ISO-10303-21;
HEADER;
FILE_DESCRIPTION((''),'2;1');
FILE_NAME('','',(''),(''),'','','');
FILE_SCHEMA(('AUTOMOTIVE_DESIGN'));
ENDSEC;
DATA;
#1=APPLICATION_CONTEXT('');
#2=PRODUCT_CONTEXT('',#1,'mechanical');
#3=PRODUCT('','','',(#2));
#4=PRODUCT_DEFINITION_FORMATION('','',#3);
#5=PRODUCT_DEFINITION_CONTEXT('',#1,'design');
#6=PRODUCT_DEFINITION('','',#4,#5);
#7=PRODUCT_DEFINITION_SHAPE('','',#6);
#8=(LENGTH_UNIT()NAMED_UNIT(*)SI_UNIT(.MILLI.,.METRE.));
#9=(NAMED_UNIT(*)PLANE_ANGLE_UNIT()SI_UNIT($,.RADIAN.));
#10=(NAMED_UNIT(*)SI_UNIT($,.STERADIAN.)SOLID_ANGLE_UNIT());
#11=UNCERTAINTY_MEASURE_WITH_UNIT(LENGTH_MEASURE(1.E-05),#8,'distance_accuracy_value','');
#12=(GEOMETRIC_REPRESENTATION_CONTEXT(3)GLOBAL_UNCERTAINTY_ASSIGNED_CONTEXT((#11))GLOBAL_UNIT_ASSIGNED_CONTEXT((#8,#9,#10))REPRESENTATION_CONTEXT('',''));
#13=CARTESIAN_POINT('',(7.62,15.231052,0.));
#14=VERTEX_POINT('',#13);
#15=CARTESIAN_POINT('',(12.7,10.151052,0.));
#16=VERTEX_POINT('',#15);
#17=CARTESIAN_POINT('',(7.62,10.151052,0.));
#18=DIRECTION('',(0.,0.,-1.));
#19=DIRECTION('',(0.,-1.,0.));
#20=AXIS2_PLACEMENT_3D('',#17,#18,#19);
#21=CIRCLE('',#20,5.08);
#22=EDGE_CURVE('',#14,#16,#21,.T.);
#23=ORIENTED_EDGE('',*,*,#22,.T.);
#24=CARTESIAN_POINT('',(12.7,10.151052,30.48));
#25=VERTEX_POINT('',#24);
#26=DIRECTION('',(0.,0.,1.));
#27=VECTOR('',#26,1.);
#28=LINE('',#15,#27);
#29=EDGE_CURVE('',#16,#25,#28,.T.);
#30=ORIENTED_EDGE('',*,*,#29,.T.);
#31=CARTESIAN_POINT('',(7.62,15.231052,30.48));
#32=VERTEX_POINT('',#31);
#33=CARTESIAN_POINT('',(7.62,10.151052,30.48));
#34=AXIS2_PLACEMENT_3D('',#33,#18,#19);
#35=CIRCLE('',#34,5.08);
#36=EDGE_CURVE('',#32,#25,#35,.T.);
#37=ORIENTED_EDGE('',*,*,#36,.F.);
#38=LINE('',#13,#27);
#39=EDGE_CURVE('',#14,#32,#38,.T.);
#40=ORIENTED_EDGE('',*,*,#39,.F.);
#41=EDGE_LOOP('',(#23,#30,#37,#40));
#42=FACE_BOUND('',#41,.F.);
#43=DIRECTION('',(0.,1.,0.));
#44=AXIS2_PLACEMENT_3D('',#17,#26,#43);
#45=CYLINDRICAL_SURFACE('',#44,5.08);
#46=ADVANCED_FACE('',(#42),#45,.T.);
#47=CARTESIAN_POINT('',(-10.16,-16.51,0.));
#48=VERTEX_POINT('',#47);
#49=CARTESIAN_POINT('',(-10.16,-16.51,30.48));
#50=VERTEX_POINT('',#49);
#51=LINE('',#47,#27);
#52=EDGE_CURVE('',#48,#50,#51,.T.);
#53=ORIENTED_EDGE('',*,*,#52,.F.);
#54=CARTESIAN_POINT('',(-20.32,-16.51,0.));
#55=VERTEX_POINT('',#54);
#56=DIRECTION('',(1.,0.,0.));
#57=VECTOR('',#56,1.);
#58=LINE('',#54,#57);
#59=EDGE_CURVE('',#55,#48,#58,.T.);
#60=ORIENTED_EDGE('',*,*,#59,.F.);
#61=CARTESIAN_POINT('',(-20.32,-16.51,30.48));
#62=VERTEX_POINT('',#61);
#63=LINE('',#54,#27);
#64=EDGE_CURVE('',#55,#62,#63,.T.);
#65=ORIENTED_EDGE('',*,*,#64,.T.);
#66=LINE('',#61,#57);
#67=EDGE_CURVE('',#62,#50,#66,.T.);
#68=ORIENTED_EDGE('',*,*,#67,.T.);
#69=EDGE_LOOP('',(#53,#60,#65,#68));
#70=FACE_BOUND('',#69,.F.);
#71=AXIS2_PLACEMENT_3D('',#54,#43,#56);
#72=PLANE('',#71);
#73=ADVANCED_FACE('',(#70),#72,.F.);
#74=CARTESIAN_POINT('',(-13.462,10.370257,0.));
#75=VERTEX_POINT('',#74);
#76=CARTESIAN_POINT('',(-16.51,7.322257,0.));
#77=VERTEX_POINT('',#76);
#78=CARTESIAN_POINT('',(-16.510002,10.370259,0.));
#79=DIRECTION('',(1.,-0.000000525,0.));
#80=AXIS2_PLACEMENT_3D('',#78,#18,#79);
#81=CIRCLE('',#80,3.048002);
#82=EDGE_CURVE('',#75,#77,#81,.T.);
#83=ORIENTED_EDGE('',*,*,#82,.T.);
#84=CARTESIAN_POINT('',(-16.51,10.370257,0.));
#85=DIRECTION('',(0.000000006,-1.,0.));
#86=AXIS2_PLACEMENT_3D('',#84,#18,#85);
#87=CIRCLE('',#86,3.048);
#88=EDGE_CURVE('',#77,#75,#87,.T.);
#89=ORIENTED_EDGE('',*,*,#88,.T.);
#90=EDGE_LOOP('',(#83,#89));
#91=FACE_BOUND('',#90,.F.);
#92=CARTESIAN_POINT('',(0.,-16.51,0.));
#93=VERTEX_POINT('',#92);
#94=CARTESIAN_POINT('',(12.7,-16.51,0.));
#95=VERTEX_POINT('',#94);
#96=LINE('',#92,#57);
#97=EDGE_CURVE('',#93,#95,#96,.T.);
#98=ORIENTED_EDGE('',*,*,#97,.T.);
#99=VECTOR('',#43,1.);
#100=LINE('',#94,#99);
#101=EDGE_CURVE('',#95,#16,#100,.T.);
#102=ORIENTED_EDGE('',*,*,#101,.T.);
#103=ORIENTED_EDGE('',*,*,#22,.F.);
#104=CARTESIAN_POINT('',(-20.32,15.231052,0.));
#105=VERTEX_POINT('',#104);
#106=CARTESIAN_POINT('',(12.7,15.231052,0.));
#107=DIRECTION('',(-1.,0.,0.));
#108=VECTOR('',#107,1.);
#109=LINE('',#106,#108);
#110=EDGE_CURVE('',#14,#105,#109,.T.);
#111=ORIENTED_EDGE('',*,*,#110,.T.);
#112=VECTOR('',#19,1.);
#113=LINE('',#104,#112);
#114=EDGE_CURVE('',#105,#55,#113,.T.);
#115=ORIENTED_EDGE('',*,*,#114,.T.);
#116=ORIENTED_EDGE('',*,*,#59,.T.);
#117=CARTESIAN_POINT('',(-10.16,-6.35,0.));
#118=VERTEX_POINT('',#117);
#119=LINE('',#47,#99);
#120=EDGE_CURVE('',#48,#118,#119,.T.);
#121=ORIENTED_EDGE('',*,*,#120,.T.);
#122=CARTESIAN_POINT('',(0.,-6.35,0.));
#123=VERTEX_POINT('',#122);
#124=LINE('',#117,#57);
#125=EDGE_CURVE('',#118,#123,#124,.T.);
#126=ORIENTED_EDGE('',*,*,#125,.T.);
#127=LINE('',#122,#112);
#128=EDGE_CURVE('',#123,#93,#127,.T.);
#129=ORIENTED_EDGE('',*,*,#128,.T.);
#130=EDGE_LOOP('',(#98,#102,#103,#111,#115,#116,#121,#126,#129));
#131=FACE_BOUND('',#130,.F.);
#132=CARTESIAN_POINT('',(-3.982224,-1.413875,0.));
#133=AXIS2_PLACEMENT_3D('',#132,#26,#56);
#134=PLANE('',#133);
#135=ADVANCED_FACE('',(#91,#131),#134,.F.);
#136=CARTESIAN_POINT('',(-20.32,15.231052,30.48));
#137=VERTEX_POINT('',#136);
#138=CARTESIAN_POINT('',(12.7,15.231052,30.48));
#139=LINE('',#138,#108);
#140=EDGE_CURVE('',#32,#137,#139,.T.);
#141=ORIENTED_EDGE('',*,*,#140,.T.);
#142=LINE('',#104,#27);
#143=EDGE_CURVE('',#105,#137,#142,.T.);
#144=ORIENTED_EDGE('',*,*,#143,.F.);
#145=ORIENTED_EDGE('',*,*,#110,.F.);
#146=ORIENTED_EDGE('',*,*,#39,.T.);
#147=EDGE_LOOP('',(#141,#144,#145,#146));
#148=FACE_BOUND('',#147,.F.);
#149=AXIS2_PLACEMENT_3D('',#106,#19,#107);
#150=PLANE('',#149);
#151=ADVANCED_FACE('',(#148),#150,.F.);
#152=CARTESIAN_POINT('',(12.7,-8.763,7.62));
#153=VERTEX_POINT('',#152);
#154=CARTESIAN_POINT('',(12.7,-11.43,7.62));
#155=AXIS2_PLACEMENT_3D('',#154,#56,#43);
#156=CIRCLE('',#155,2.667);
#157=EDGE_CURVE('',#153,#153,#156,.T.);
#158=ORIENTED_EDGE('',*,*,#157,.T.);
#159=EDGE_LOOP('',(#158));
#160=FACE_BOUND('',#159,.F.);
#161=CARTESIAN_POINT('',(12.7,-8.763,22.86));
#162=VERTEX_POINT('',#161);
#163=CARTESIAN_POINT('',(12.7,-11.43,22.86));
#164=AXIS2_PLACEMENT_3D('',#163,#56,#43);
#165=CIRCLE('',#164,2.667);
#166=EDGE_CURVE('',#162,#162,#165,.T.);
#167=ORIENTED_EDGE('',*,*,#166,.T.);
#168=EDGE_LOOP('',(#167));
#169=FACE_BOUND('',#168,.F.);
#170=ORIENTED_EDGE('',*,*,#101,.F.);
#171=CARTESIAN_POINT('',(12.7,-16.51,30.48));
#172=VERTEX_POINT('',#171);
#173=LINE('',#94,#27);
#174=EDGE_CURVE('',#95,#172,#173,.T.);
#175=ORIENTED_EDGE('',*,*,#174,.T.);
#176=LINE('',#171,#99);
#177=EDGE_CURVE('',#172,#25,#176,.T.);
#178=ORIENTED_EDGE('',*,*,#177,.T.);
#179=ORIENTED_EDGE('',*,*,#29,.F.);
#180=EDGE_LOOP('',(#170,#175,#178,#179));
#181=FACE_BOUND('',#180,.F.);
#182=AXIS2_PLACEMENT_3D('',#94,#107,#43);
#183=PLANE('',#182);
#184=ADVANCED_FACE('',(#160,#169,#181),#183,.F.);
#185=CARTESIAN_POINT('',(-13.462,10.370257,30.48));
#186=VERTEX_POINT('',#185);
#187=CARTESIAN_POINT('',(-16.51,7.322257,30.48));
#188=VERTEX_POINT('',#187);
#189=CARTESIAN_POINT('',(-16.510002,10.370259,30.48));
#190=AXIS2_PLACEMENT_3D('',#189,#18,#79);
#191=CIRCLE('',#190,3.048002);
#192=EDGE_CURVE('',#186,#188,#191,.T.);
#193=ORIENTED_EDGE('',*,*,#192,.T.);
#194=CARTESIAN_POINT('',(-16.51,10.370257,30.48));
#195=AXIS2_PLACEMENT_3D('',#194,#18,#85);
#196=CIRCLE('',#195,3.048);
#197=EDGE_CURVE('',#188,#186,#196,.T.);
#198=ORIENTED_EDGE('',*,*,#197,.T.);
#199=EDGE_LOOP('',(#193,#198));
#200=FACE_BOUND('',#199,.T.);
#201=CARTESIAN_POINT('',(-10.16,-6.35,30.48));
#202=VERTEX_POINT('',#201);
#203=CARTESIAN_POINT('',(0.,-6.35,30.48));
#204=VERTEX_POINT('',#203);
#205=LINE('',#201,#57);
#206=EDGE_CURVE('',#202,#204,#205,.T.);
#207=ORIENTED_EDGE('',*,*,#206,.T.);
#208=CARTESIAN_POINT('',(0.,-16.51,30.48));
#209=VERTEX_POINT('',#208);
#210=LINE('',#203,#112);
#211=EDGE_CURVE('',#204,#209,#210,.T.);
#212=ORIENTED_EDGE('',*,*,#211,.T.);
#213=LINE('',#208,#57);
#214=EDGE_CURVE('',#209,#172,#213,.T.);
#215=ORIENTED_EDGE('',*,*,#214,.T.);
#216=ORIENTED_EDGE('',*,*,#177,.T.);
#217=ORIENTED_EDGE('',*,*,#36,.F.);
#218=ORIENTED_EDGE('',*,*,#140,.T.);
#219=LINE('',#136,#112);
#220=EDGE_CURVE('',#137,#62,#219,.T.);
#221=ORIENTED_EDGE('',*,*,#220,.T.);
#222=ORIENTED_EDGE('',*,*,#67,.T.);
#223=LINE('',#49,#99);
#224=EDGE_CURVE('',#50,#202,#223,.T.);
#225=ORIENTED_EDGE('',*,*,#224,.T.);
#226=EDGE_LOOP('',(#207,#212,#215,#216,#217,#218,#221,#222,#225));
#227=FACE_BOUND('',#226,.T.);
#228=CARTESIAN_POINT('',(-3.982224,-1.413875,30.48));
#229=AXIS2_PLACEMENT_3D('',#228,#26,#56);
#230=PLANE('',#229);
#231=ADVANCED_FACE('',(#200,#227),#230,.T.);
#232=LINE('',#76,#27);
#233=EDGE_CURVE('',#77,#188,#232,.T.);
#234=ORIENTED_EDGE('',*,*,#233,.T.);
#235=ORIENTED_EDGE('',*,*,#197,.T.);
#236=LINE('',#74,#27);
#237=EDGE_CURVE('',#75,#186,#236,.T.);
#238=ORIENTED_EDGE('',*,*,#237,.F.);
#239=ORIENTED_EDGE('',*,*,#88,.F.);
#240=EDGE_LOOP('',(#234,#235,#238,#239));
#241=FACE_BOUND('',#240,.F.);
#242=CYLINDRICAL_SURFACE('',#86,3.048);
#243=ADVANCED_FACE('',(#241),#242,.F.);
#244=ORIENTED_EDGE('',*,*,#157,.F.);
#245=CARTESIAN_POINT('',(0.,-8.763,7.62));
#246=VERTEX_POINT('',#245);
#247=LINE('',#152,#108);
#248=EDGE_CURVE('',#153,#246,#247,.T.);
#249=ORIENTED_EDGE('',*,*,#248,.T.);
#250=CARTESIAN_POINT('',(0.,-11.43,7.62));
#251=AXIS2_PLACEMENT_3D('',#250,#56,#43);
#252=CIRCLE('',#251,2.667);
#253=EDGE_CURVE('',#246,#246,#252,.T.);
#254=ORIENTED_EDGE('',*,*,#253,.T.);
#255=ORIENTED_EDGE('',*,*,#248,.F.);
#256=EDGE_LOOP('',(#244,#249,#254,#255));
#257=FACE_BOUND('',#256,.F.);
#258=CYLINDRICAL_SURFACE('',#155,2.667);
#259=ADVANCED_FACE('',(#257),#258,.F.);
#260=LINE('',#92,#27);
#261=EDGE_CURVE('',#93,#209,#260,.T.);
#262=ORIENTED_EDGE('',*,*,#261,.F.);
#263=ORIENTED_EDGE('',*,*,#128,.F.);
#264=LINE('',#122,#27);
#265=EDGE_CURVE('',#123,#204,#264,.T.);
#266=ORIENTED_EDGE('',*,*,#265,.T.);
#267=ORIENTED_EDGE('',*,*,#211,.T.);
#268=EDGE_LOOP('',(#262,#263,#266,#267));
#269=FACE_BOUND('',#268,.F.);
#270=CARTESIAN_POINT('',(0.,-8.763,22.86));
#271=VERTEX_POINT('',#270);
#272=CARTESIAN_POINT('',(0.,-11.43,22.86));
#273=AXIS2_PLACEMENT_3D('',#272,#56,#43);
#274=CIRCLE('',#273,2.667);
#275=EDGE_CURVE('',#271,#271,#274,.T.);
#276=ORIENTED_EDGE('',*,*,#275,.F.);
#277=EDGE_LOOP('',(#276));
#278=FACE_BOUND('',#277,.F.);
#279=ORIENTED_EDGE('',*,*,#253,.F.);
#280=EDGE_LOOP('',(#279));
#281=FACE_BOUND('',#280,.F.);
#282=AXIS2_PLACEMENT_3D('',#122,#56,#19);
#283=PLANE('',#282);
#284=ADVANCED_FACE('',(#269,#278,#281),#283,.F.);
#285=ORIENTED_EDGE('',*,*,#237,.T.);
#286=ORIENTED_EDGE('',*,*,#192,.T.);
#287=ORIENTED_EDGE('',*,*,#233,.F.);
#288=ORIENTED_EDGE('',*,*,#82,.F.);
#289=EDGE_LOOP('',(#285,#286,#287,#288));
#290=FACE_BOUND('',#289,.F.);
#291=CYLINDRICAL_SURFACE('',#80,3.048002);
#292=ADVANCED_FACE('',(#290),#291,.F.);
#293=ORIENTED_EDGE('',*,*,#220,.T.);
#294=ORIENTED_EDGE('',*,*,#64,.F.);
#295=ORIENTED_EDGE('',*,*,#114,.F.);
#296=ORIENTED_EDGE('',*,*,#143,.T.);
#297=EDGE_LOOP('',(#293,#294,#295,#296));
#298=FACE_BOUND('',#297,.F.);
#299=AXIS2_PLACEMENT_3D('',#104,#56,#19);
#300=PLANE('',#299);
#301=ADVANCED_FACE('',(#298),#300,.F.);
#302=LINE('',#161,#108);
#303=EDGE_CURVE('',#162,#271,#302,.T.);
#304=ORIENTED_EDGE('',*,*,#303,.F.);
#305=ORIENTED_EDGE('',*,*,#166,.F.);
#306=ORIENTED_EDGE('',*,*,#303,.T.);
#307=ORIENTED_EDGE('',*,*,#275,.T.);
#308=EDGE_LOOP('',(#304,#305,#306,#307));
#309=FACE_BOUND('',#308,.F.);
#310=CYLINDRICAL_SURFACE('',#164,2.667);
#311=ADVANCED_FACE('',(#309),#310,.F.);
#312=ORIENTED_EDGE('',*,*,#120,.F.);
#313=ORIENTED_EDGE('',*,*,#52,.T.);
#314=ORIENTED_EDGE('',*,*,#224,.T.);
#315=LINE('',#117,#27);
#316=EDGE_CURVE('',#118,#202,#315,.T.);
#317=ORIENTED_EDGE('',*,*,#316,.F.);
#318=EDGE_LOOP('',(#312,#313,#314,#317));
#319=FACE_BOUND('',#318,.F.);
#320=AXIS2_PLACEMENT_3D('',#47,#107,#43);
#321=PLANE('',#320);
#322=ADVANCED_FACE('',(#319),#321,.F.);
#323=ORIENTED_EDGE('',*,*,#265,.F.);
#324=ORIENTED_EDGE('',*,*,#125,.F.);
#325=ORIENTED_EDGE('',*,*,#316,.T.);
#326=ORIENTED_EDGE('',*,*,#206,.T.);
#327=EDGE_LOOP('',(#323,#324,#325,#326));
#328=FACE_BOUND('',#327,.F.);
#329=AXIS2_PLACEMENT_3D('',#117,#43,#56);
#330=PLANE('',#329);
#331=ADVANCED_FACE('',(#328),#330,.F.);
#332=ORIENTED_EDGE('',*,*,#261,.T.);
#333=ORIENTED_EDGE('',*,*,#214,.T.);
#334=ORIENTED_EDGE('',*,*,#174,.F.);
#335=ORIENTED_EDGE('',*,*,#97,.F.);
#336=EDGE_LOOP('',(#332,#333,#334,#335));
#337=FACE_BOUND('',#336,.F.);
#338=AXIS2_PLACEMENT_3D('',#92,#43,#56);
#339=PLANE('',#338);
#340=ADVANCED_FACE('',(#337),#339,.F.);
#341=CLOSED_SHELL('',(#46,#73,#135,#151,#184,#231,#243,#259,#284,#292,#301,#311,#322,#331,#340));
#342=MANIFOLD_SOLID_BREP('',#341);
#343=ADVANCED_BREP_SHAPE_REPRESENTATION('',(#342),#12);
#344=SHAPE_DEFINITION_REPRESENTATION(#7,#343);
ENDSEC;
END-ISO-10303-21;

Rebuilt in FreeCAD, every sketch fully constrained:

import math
import FreeCAD as App
import Part
import Sketcher

V = App.Vector
Q = App.Units.Quantity


def edges_at(feature, points):
    """Names of the edges that pass closest to the given points."""
    edges = feature.Shape.Edges
    near = lambda p: min(range(len(edges)), key=lambda i: edges[i].distToShape(Part.Vertex(*p))[0])
    return sorted({f"Edge{near(p) + 1}" for p in points})

doc = App.newDocument("Part")
params = doc.addObject("Spreadsheet::Sheet", "Params")
for row, (alias, value) in enumerate([
    ("sketch1_radius", "0.12 in"),
    ("sketch1_width", "0.4 in"),
    ("sketch1_width2", "0.5 in"),
    ("pad1_length", "1.2 in"),
    ("sketch2_diameter", "0.21 in"),
    ("pocket1_length", "0.5 in"),
    ("fillet_radius", "0.2 in"),
], start=1):
    params.set(f"A{row}", alias)
    params.set(f"B{row}", "=" + value)
    params.setAlias(f"B{row}", alias)

body = doc.addObject("PartDesign::Body", "Body")

# Sketch on XY plane
sketch1 = doc.addObject("Sketcher::SketchObject", "Sketch")
body.addObject(sketch1)
sketch1.AttachmentSupport = (doc.XY_Plane, [""])
sketch1.MapMode = "FlatFace"
sketch1.addGeometry(Part.LineSegment(V(-10.16, -16.51, 0), V(-10.16, -6.35, 0)), False)
sketch1.addGeometry(Part.LineSegment(V(-10.16, -6.35, 0), V(0, -6.35, 0)), False)
sketch1.addGeometry(Part.LineSegment(V(0, -6.35, 0), V(0, -16.51, 0)), False)
sketch1.addGeometry(Part.LineSegment(V(0, -16.51, 0), V(12.7, -16.51, 0)), False)
sketch1.addGeometry(Part.LineSegment(V(12.7, -16.51, 0), V(12.7, 15.231052, 0)), False)
sketch1.addGeometry(Part.LineSegment(V(12.7, 15.231052, 0), V(-20.32, 15.231052, 0)), False)
sketch1.addGeometry(Part.LineSegment(V(-20.32, 15.231052, 0), V(-20.32, -16.51, 0)), False)
sketch1.addGeometry(Part.LineSegment(V(-20.32, -16.51, 0), V(-10.16, -16.51, 0)), False)
sketch1.addGeometry(Part.ArcOfCircle(Part.Circle(V(-16.51, 10.370257, 0), V(0, 0, 1), 3.048), math.radians(0), math.radians(270)), False)
sketch1.addGeometry(Part.ArcOfCircle(Part.Circle(V(-16.510002, 10.370259, 0), V(0, 0, 1), 3.048002), math.radians(-89.99997), math.radians(-0.00003)), False)
sketch1.addConstraint(Sketcher.Constraint("Coincident", 0, 2, 1, 1))
sketch1.addConstraint(Sketcher.Constraint("Coincident", 1, 2, 2, 1))
sketch1.addConstraint(Sketcher.Constraint("Coincident", 2, 2, 3, 1))
sketch1.addConstraint(Sketcher.Constraint("Coincident", 3, 2, 4, 1))
sketch1.addConstraint(Sketcher.Constraint("Coincident", 4, 2, 5, 1))
sketch1.addConstraint(Sketcher.Constraint("Coincident", 5, 2, 6, 1))
sketch1.addConstraint(Sketcher.Constraint("Coincident", 6, 2, 7, 1))
sketch1.addConstraint(Sketcher.Constraint("Coincident", 7, 2, 0, 1))
sketch1.addConstraint(Sketcher.Constraint("Tangent", 8, 1, 9, 2))
sketch1.addConstraint(Sketcher.Constraint("Coincident", 9, 1, 8, 2))
sketch1.addConstraint(Sketcher.Constraint("Vertical", 0))
sketch1.addConstraint(Sketcher.Constraint("Horizontal", 1))
sketch1.addConstraint(Sketcher.Constraint("Vertical", 2))
sketch1.addConstraint(Sketcher.Constraint("Horizontal", 3))
sketch1.addConstraint(Sketcher.Constraint("Vertical", 4))
sketch1.addConstraint(Sketcher.Constraint("Horizontal", 5))
sketch1.addConstraint(Sketcher.Constraint("Vertical", 6))
sketch1.addConstraint(Sketcher.Constraint("Horizontal", 7))
sketch1.addConstraint(Sketcher.Constraint("PointOnObject", 1, 2, -2))
sketch1.addConstraint(Sketcher.Constraint("Horizontal", 3, 2, 6, 2))
sketch1.addConstraint(Sketcher.Constraint("Horizontal", 9, 3, 8, 1))
sketch1.addConstraint(Sketcher.Constraint("Vertical", 8, 3, 9, 1))
sketch1.addConstraint(Sketcher.Constraint("Equal", 1, 7))
sketch1.addConstraint(Sketcher.Constraint("Equal", 7, 0))
sketch1.addConstraint(Sketcher.Constraint("Radius", 8, Q("0.12 in")))
sketch1.addConstraint(Sketcher.Constraint("DistanceX", 1, 1, 1, 2, Q("0.4 in")))
sketch1.addConstraint(Sketcher.Constraint("DistanceX", 3, 1, 3, 2, Q("0.5 in")))
sketch1.addConstraint(Sketcher.Constraint("DistanceX", 8, 3, -1, 1, Q("0.65 in")))
sketch1.addConstraint(Sketcher.Constraint("DistanceY", 0, 2, -1, 1, Q("0.25 in")))
sketch1.addConstraint(Sketcher.Constraint("DistanceY", 4, 1, 4, 2, Q("31.741052 mm")))
sketch1.addConstraint(Sketcher.Constraint("DistanceY", -1, 1, 9, 3, Q("10.370259 mm")))
sketch1.setExpression("Constraints[24]", "Params.sketch1_radius")
sketch1.setExpression("Constraints[25]", "Params.sketch1_width")
sketch1.setExpression("Constraints[26]", "Params.sketch1_width2")
pad1 = doc.addObject("PartDesign::Pad", "Pad")
body.addObject(pad1)
pad1.Profile = sketch1
pad1.setExpression("Length", "Params.pad1_length")

# Sketch on YZ plane
sketch2 = doc.addObject("Sketcher::SketchObject", "Sketch001")
body.addObject(sketch2)
sketch2.AttachmentSupport = (doc.YZ_Plane, [""])
sketch2.MapMode = "FlatFace"
sketch2.AttachmentOffset = App.Placement(V(0, 0, 0.5 * 25.4), App.Rotation())
sketch2.addGeometry(Part.Circle(V(-11.43, 22.86, 0), V(0, 0, 1), 2.667), False)
sketch2.addGeometry(Part.Circle(V(-11.43, 7.62, 0), V(0, 0, 1), 2.667), False)
sketch2.addConstraint(Sketcher.Constraint("Equal", 0, 1))
sketch2.addConstraint(Sketcher.Constraint("Vertical", 0, 3, 1, 3))
sketch2.addConstraint(Sketcher.Constraint("Diameter", 0, Q("0.21 in")))
sketch2.addConstraint(Sketcher.Constraint("DistanceY", -1, 1, 0, 3, Q("0.9 in")))
sketch2.addConstraint(Sketcher.Constraint("DistanceY", -1, 1, 1, 3, Q("0.3 in")))
sketch2.addConstraint(Sketcher.Constraint("DistanceX", 0, 3, -1, 1, Q("0.45 in")))
sketch2.setExpression("Constraints[2]", "Params.sketch2_diameter")
pocket1 = doc.addObject("PartDesign::Pocket", "Pocket")
body.addObject(pocket1)
pocket1.Profile = sketch2
pocket1.setExpression("Length", "Params.pocket1_length")
doc.recompute()

fillet = doc.addObject("PartDesign::Fillet", "Fillet")
body.addObject(fillet)
fillet.Base = (pocket1, edges_at(pocket1, [(12.7, 15.231, 15.24)]))
fillet.setExpression("Radius", "Params.fillet_radius")

doc.recompute()
